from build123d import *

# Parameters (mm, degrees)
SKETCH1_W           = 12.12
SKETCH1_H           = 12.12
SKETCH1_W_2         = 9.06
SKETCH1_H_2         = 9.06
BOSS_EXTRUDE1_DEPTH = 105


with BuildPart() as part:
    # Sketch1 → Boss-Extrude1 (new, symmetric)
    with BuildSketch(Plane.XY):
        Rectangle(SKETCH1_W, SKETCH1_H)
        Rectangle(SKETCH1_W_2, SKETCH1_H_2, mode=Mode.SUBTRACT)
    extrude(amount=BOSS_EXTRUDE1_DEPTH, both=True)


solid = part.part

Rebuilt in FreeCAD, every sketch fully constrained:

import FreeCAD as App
import Part
import Sketcher
from FreeCAD import Vector
Q = App.Units.Quantity

doc = App.newDocument("Part")
body = doc.addObject("PartDesign::Body", "Body")

# Sketch on XY plane
sketch1 = body.newObject("Sketcher::SketchObject", "Sketch")
sketch1.AttachmentSupport = (doc.getObject("XY_Plane"), [""])
sketch1.MapMode = "FlatFace"
sketch1.addGeometry([
    Part.LineSegment(Vector(-6, 6, 0), Vector(-6, -6, 0)),  # 0
    Part.LineSegment(Vector(-6, -6, 0), Vector(6, -6, 0)),  # 1
    Part.LineSegment(Vector(6, -6, 0), Vector(6, 6, 0)),  # 2
    Part.LineSegment(Vector(6, 6, 0), Vector(-6, 6, 0)),  # 3
    Part.LineSegment(Vector(5, -5, 0), Vector(-5, -5, 0)),  # 4
    Part.LineSegment(Vector(-5, -5, 0), Vector(-5, 5, 0)),  # 5
    Part.LineSegment(Vector(-5, 5, 0), Vector(5, 5, 0)),  # 6
    Part.LineSegment(Vector(5, 5, 0), Vector(5, -5, 0)),  # 7
], False)
sketch1.addConstraint([
    Sketcher.Constraint("Coincident", 0, 2, 1, 1),
    Sketcher.Constraint("Coincident", 1, 2, 2, 1),
    Sketcher.Constraint("Coincident", 2, 2, 3, 1),
    Sketcher.Constraint("Coincident", 3, 2, 0, 1),
    Sketcher.Constraint("Coincident", 4, 2, 5, 1),
    Sketcher.Constraint("Coincident", 5, 2, 6, 1),
    Sketcher.Constraint("Coincident", 6, 2, 7, 1),
    Sketcher.Constraint("Coincident", 7, 2, 4, 1),
    Sketcher.Constraint("Vertical", 0),
    Sketcher.Constraint("Horizontal", 1),
    Sketcher.Constraint("Vertical", 2),
    Sketcher.Constraint("Horizontal", 3),
    Sketcher.Constraint("Horizontal", 4),
    Sketcher.Constraint("Vertical", 5),
    Sketcher.Constraint("Horizontal", 6),
    Sketcher.Constraint("Vertical", 7),
    Sketcher.Constraint("Symmetric", 0, 2, 2, 2, -1, 1),
    Sketcher.Constraint("Symmetric", 4, 2, 6, 2, -1, 1),
    Sketcher.Constraint("Equal", 3, 0),
    Sketcher.Constraint("Equal", 6, 5),
    Sketcher.Constraint("DistanceX", 1, 1, 1, 2, Q("12.12 mm")),
    Sketcher.Constraint("DistanceX", 4, 2, 4, 1, Q("9.06 mm")),
])
pad1 = body.newObject("PartDesign::Pad", "Pad")
pad1.Profile = sketch1
pad1.Length = 210
pad1.Midplane = True

doc.recompute()
